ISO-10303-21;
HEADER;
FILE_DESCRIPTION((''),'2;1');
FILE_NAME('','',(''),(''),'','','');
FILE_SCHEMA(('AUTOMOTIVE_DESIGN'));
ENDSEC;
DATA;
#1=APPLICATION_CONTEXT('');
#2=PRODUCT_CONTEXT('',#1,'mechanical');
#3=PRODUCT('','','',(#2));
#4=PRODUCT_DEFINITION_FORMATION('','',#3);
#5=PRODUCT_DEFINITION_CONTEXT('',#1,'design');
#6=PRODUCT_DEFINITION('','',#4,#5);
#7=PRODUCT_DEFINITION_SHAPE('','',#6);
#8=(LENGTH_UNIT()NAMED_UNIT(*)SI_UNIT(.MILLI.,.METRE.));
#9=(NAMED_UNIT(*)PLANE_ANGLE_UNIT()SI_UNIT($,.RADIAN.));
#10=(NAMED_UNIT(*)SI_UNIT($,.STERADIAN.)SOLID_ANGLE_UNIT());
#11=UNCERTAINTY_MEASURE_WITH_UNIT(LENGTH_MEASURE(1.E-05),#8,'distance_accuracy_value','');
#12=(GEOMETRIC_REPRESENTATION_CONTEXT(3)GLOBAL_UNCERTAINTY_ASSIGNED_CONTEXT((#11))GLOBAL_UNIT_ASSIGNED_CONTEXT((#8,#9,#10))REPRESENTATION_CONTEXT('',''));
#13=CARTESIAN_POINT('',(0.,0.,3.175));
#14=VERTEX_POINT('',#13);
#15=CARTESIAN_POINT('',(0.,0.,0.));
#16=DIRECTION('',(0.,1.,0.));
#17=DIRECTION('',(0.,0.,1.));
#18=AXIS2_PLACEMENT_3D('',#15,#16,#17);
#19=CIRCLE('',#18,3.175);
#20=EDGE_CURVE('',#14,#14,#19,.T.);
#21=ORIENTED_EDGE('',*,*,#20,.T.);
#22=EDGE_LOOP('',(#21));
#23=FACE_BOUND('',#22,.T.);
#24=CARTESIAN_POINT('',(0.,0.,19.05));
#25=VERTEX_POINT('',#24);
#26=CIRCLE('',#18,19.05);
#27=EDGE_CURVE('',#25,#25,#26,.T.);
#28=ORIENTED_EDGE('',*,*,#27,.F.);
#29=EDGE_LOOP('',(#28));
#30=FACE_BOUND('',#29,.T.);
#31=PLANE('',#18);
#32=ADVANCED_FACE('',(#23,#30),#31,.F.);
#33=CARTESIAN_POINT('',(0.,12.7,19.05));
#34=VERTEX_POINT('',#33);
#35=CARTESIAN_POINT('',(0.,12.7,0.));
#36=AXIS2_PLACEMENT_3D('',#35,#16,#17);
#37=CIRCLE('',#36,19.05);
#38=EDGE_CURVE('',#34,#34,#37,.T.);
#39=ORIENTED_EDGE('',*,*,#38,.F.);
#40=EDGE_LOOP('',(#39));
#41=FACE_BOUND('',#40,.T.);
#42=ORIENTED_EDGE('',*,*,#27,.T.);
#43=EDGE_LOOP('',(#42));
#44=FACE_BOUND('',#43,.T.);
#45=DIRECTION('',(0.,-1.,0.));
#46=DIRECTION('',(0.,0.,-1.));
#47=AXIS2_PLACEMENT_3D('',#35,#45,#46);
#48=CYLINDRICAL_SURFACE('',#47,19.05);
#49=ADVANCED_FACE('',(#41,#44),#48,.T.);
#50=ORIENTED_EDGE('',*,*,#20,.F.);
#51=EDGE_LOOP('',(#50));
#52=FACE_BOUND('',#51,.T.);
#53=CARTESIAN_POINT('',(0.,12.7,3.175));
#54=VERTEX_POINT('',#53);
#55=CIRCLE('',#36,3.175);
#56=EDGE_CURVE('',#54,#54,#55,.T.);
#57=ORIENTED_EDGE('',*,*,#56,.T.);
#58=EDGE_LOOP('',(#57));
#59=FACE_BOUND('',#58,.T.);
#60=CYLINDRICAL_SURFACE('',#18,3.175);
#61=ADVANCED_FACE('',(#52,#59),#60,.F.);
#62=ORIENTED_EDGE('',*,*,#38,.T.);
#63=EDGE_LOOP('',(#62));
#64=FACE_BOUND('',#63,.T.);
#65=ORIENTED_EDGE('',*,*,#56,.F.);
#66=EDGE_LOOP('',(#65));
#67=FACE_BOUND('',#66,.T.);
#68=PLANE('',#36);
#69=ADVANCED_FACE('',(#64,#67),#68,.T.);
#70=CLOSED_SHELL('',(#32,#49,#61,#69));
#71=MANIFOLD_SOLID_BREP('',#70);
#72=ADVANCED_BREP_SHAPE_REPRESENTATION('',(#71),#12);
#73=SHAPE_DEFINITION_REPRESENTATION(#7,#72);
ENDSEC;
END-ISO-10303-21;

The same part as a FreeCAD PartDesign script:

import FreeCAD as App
import Part
import Sketcher
Q = App.Units.Quantity

doc = App.newDocument("Part")
body = doc.addObject("PartDesign::Body", "Body")

# Sketch on XZ plane
sketch1 = doc.addObject("Sketcher::SketchObject", "Sketch")
body.addObject(sketch1)
sketch1.AttachmentSupport = (doc.XZ_Plane, [""])
sketch1.MapMode = "FlatFace"
sketch1.addGeometry(Part.Circle(App.Vector(0, 0, 0), App.Vector(0, 0, 1), 19), False)
sketch1.addConstraint(Sketcher.Constraint("Coincident", 0, 3, -1, 1))
sketch1.addConstraint(Sketcher.Constraint("Diameter", 0, Q("1.5 in")))
pad1 = doc.addObject("PartDesign::Pad", "Pad")
body.addObject(pad1)
pad1.Profile = sketch1
pad1.Length = Q("0.5 in")
pad1.Reversed = True

# Sketch on XZ plane
sketch2 = doc.addObject("Sketcher::SketchObject", "Sketch001")
body.addObject(sketch2)
sketch2.AttachmentSupport = (doc.XZ_Plane, [""])
sketch2.MapMode = "FlatFace"
sketch2.AttachmentOffset = App.Placement(App.Vector(0, 0, -0.5 * 25.4), App.Rotation())
sketch2.addGeometry(Part.Circle(App.Vector(0, 0, 0), App.Vector(0, 0, 1), 3.2), False)
sketch2.addConstraint(Sketcher.Constraint("Coincident", 0, 3, -1, 1))
sketch2.addConstraint(Sketcher.Constraint("Diameter", 0, Q("0.25 in")))
pocket1 = doc.addObject("PartDesign::Pocket", "Pocket")
body.addObject(pocket1)
pocket1.Profile = sketch2
pocket1.Length = Q("0.5 in")
pocket1.Reversed = True

doc.recompute()
